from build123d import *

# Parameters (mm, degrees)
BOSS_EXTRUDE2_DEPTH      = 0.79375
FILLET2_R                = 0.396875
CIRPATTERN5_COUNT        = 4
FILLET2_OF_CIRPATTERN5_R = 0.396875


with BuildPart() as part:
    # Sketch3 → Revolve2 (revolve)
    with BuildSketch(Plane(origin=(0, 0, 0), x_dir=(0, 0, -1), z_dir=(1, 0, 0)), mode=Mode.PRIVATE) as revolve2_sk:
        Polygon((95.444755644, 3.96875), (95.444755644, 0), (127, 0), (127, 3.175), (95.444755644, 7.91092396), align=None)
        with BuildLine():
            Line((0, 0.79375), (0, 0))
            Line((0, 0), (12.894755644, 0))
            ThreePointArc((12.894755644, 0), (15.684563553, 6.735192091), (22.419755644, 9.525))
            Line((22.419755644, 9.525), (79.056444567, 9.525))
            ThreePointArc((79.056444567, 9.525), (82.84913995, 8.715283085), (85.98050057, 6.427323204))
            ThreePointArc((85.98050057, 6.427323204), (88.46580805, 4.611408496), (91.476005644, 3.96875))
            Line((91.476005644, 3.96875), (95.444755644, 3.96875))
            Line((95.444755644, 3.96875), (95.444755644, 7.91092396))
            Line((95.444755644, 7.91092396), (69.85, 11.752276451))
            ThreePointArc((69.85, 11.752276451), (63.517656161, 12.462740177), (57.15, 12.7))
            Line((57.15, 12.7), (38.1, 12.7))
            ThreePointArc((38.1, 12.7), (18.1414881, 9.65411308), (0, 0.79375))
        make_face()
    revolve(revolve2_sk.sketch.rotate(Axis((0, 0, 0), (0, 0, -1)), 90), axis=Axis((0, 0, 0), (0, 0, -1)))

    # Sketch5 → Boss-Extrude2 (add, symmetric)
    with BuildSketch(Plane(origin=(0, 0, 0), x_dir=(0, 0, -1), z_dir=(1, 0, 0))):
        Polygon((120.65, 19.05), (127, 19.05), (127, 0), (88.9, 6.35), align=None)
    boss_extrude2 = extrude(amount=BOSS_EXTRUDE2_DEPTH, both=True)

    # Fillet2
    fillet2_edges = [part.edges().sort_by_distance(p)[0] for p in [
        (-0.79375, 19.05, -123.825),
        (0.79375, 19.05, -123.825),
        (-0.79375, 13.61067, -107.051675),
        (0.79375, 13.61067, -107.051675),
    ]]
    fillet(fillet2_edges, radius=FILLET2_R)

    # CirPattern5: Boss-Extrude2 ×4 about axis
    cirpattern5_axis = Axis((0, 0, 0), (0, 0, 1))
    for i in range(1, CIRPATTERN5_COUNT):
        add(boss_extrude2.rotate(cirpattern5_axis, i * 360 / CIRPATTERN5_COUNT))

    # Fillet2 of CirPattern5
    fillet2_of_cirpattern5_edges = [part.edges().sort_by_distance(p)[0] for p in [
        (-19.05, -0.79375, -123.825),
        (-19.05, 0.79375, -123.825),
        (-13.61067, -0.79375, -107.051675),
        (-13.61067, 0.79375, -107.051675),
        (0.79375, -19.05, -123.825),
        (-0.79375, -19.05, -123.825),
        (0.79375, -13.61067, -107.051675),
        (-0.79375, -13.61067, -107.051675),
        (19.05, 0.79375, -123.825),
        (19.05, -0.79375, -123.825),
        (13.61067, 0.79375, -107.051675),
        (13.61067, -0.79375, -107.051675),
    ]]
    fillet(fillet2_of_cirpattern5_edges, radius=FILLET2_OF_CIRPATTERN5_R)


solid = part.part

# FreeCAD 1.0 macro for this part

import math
import FreeCAD as App
import Part
import Sketcher
Q = App.Units.Quantity


def edges_at(feature, points):
    """Names of the edges that pass closest to the given points."""
    edges = feature.Shape.Edges
    near = lambda p: min(range(len(edges)), key=lambda i: edges[i].distToShape(Part.Vertex(*p))[0])
    return sorted({f"Edge{near(p) + 1}" for p in points})


def add_polygon(sketch, points):
    """Adds a closed chain of lines whose ends are joined by coincident constraints."""
    first, n = sketch.GeometryCount, len(points)
    for a, b in zip(points, points[1:] + points[:1]):
        sketch.addGeometry(Part.LineSegment(App.Vector(*a, 0), App.Vector(*b, 0)), False)
    for i in range(n):
        sketch.addConstraint(Sketcher.Constraint("Coincident", first + i, 2, first + (i + 1) % n, 1))

doc = App.newDocument("Part")
body = doc.addObject("PartDesign::Body", "Body")

# Sketch on YZ plane
sketch1 = body.newObject("Sketcher::SketchObject", "Sketch")
sketch1.AttachmentSupport = (doc.getObject("YZ_Plane"), [""])
sketch1.MapMode = "FlatFace"
sketch1.addGeometry([
    Part.LineSegment(App.Vector(0, -95.4, 0), App.Vector(0, -127, 0)),  # 0
    Part.LineSegment(App.Vector(0, -127, 0), App.Vector(3.2, -127, 0)),  # 1
    Part.LineSegment(App.Vector(3.2, -127, 0), App.Vector(7.9, -95.4, 0)),  # 2
    Part.LineSegment(App.Vector(7.9, -95.4, 0), App.Vector(11.8, -69.8, 0)),  # 3
    Part.ArcOfCircle(Part.Circle(App.Vector(-72.9, -57.1, 0), App.Vector(0, 0, 1), 85.6), math.radians(-8.54), math.radians(0)),  # 4
    Part.LineSegment(App.Vector(12.7, -57.1, 0), App.Vector(12.7, -38.1, 0)),  # 5
    Part.ArcOfCircle(Part.Circle(App.Vector(-54.2, -38.1, 0), App.Vector(0, 0, 1), 66.9), math.radians(0), math.radians(35)),  # 6
    Part.LineSegment(App.Vector(0.8, 0, 0), App.Vector(0, 0, 0)),  # 7
    Part.LineSegment(App.Vector(0, 0, 0), App.Vector(0, -12.9, 0)),  # 8
    Part.ArcOfCircle(Part.Circle(App.Vector(0, -22.4, 0), App.Vector(0, 0, 1), 9.5), math.radians(0), math.radians(90)),  # 9
    Part.LineSegment(App.Vector(9.5, -22.4, 0), App.Vector(9.5, -79.1, 0)),  # 10
    Part.ArcOfCircle(Part.Circle(App.Vector(0.2, -79.1, 0), App.Vector(0, 0, 1), 9.3), math.radians(-48), math.radians(0)),  # 11
    Part.ArcOfCircle(Part.Circle(App.Vector(11.3, -91.5, 0), App.Vector(0, 0, 1), 7.4), math.radians(132), math.radians(180)),  # 12
    Part.LineSegment(App.Vector(4, -91.5, 0), App.Vector(4, -95.4, 0)),  # 13
    Part.LineSegment(App.Vector(4, -95.4, 0), App.Vector(0, -95.4, 0)),  # 14
], False)
sketch1.addConstraint([
    Sketcher.Constraint("Coincident", 0, 2, 1, 1),
    Sketcher.Constraint("Coincident", 1, 2, 2, 1),
    Sketcher.Constraint("Coincident", 2, 2, 3, 1),
    Sketcher.Constraint("Tangent", 3, 2, 4, 1),
    Sketcher.Constraint("Tangent", 4, 2, 5, 1),
    Sketcher.Constraint("Tangent", 5, 2, 6, 1),
    Sketcher.Constraint("Coincident", 6, 2, 7, 1),
    Sketcher.Constraint("Coincident", 7, 2, 8, 1),
    Sketcher.Constraint("Coincident", 8, 2, 9, 2),
    Sketcher.Constraint("Tangent", 9, 1, 10, 1),
    Sketcher.Constraint("Tangent", 10, 2, 11, 2),
    Sketcher.Constraint("Tangent", 11, 1, 12, 1),
    Sketcher.Constraint("Tangent", 12, 2, 13, 1),
    Sketcher.Constraint("Coincident", 13, 2, 14, 1),
    Sketcher.Constraint("Coincident", 14, 2, 0, 1),
    Sketcher.Constraint("Vertical", 0),
    Sketcher.Constraint("Horizontal", 1),
    Sketcher.Constraint("Vertical", 5),
    Sketcher.Constraint("Horizontal", 7),
    Sketcher.Constraint("Vertical", 8),
    Sketcher.Constraint("Vertical", 10),
    Sketcher.Constraint("Vertical", 13),
    Sketcher.Constraint("Horizontal", 14),
    Sketcher.Constraint("Coincident", 7, 2, -1, 1),
    Sketcher.Constraint("PointOnObject", 9, 3, -2),
    Sketcher.Constraint("PointOnObject", 0, 2, -2),
    Sketcher.Constraint("Parallel", 2, 3),
    Sketcher.Constraint("Horizontal", 2, 2, 13, 2),
    Sketcher.Constraint("Equal", 14, 13),
    Sketcher.Constraint("DistanceY", 0, 2, -1, 1, Q("5 in")),
    Sketcher.Constraint("Radius", 9, Q("0.375 in")),
    Sketcher.Constraint("DistanceY", 5, 1, 5, 2, Q("0.75 in")),
    Sketcher.Constraint("DistanceY", 6, 3, -1, 1, Q("1.5 in")),
    Sketcher.Constraint("DistanceX", -1, 1, 4, 2, Q("0.5 in")),
    Sketcher.Constraint("DistanceY", 3, 2, 4, 2, Q("0.5 in")),
    Sketcher.Constraint("DistanceX", 1, 1, 1, 2, Q("0.125 in")),
    Sketcher.Constraint("DistanceX", 7, 2, 7, 1, Q("0.03125 in")),
    Sketcher.Constraint("DistanceX", 14, 2, 14, 1, Q("0.15625 in")),
    Sketcher.Constraint("DistanceY", 12, 3, 9, 3, Q("2.71875 in")),
    Sketcher.Constraint("DistanceX", 2, 2, 12, 3, Q("0.1350001 in")),
    Sketcher.Constraint("Radius", 11, 9.287307),
    Sketcher.Constraint("Radius", 12, 7.371177),
])
revolution = body.newObject("PartDesign::Revolution", "Revolution")
revolution.Profile = sketch1
revolution.ReferenceAxis = (sketch1, ["V_Axis"])
revolution.Angle = 360

# Sketch on YZ plane
sketch2 = body.newObject("Sketcher::SketchObject", "Sketch001")
sketch2.AttachmentSupport = (doc.getObject("YZ_Plane"), [""])
sketch2.MapMode = "FlatFace"
add_polygon(sketch2, [(19, -127), (19, -121), (6, -89), (0, -127)])  # lines 0-3
sketch2.addConstraint([
    Sketcher.Constraint("Vertical", 0),
    Sketcher.Constraint("Horizontal", 3),
    Sketcher.Constraint("PointOnObject", 2, 2, -2),
    Sketcher.Constraint("DistanceY", 2, 2, -1, 1, Q("5 in")),
    Sketcher.Constraint("DistanceX", 3, 1, 3, 2, Q("0.75 in")),
    Sketcher.Constraint("DistanceY", 0, 1, 0, 2, Q("0.25 in")),
    Sketcher.Constraint("DistanceY", 1, 2, -1, 1, Q("3.5 in")),
    Sketcher.Constraint("DistanceX", 1, 2, 0, 2, Q("0.5 in")),
])
pad1 = body.newObject("PartDesign::Pad", "Pad")
pad1.Profile = sketch2
pad1.Length = Q("0.0625 in")
pad1.Midplane = True
doc.recompute()

fillet = body.newObject("PartDesign::Fillet", "Fillet")
fillet.Base = (pad1, edges_at(pad1, [
    (-0.794, 19.05, -123.825),
    (0.794, 19.05, -123.825),
    (-0.794, 13.611, -107.052),
    (0.794, 13.611, -107.052),
]))
fillet.Radius = Q("0.015625 in")
doc.recompute()

polarpattern = body.newObject("PartDesign::PolarPattern", "PolarPattern")
polarpattern.Originals = [pad1]
polarpattern.Axis = (doc.getObject("Z_Axis"), [""])
polarpattern.Angle = 360
polarpattern.Occurrences = 4
body.Tip = polarpattern
doc.recompute()

fillet2 = body.newObject("PartDesign::Fillet", "Fillet001")
fillet2.Base = (polarpattern, edges_at(polarpattern, [
    (-19.05, -0.794, -123.825),
    (-19.05, 0.794, -123.825),
    (-13.611, -0.794, -107.052),
    (-13.611, 0.794, -107.052),
    (0.794, -19.05, -123.825),
    (-0.794, -19.05, -123.825),
    (0.794, -13.611, -107.052),
    (-0.794, -13.611, -107.052),
    (19.05, 0.794, -123.825),
    (19.05, -0.794, -123.825),
    (13.611, 0.794, -107.052),
    (13.611, -0.794, -107.052),
]))
fillet2.Radius = Q("0.015625 in")

doc.recompute()
